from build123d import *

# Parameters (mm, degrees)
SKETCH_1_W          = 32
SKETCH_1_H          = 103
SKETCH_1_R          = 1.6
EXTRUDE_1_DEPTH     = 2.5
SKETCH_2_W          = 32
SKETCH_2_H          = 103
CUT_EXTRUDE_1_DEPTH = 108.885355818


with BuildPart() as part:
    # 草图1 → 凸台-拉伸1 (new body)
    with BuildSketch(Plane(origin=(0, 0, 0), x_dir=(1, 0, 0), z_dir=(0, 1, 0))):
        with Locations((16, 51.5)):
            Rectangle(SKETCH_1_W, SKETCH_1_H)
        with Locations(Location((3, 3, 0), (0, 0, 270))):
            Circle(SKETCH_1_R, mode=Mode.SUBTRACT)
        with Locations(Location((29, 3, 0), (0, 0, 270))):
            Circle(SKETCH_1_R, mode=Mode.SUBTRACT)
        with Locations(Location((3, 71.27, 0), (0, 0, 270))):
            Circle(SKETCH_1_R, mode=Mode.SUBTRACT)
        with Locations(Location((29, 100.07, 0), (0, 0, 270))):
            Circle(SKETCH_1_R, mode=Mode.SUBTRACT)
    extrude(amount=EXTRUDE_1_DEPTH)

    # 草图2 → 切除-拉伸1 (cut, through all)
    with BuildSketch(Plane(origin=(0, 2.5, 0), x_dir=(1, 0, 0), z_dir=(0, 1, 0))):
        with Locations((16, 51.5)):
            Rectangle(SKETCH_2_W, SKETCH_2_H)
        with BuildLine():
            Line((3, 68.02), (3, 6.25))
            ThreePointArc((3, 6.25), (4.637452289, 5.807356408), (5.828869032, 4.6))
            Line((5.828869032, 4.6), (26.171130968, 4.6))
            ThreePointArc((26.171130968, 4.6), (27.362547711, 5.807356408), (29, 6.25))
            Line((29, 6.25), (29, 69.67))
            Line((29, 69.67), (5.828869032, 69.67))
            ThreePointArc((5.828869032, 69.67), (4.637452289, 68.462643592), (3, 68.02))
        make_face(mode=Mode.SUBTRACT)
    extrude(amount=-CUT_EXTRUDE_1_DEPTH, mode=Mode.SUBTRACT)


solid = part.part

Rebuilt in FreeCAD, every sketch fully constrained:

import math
import FreeCAD as App
import Part
import Sketcher

V = App.Vector

doc = App.newDocument("Part")
params = doc.addObject("Spreadsheet::Sheet", "Params")
for row, (alias, value) in enumerate([
    ("sketch1_diameter", "3.2 mm"),
    ("sketch1_width", "32 mm"),
    ("sketch1_height", "103 mm"),
    ("pad1_length", "2.5 mm"),
    ("sketch2_width", "32 mm"),
    ("sketch2_height", "103 mm"),
    ("sketch2_radius", "3.25 mm"),
    ("sketch2_height2", "61.77 mm"),
    ("sketch2_height3", "63.42 mm"),
], start=1):
    params.set(f"A{row}", alias)
    params.set(f"B{row}", "=" + value)
    params.setAlias(f"B{row}", alias)

body = doc.addObject("PartDesign::Body", "Body")

# Sketch on XZ plane
sketch1 = body.newObject("Sketcher::SketchObject", "Sketch")
sketch1.AttachmentSupport = (doc.getObject("XZ_Plane"), [""])
sketch1.MapMode = "FlatFace"
sketch1.addGeometry(Part.LineSegment(V(0, -103, 0), V(0, 0, 0)), False)
sketch1.addGeometry(Part.LineSegment(V(0, 0, 0), V(32, 0, 0)), False)
sketch1.addGeometry(Part.LineSegment(V(32, 0, 0), V(32, -103, 0)), False)
sketch1.addGeometry(Part.LineSegment(V(32, -103, 0), V(0, -103, 0)), False)
sketch1.addGeometry(Part.Circle(V(3, -3, 0), V(0, 0, 1), 1.6), False)
sketch1.addGeometry(Part.Circle(V(29, -3, 0), V(0, 0, 1), 1.6), False)
sketch1.addGeometry(Part.Circle(V(3, -71.3, 0), V(0, 0, 1), 1.6), False)
sketch1.addGeometry(Part.Circle(V(29, -100.1, 0), V(0, 0, 1), 1.6), False)
sketch1.addConstraint(Sketcher.Constraint("Coincident", 0, 2, 1, 1))
sketch1.addConstraint(Sketcher.Constraint("Coincident", 1, 2, 2, 1))
sketch1.addConstraint(Sketcher.Constraint("Coincident", 2, 2, 3, 1))
sketch1.addConstraint(Sketcher.Constraint("Coincident", 3, 2, 0, 1))
sketch1.addConstraint(Sketcher.Constraint("Vertical", 0))
sketch1.addConstraint(Sketcher.Constraint("Horizontal", 1))
sketch1.addConstraint(Sketcher.Constraint("Vertical", 2))
sketch1.addConstraint(Sketcher.Constraint("Horizontal", 3))
sketch1.addConstraint(Sketcher.Constraint("Coincident", 0, 2, -1, 1))
sketch1.addConstraint(Sketcher.Constraint("Equal", 4, 5))
sketch1.addConstraint(Sketcher.Constraint("Equal", 5, 6))
sketch1.addConstraint(Sketcher.Constraint("Equal", 6, 7))
sketch1.addConstraint(Sketcher.Constraint("Horizontal", 4, 3, 5, 3))
sketch1.addConstraint(Sketcher.Constraint("Vertical", 4, 3, 6, 3))
sketch1.addConstraint(Sketcher.Constraint("Vertical", 5, 3, 7, 3))
sketch1.addConstraint(Sketcher.Constraint("Diameter", 4, 3.2))
sketch1.addConstraint(Sketcher.Constraint("DistanceX", 1, 1, 1, 2, 32.0))
sketch1.addConstraint(Sketcher.Constraint("DistanceY", 0, 1, 0, 2, 103.0))
sketch1.addConstraint(Sketcher.Constraint("DistanceX", -1, 1, 4, 3, 3.0))
sketch1.addConstraint(Sketcher.Constraint("DistanceY", 4, 3, -1, 1, 3.0))
sketch1.addConstraint(Sketcher.Constraint("DistanceX", -1, 1, 5, 3, 29.0))
sketch1.addConstraint(Sketcher.Constraint("DistanceY", 7, 3, 6, 3, 28.8))
sketch1.addConstraint(Sketcher.Constraint("DistanceY", 6, 3, -1, 1, 71.27))
sketch1.setExpression("Constraints[15]", "Params.sketch1_diameter")
sketch1.setExpression("Constraints[16]", "Params.sketch1_width")
sketch1.setExpression("Constraints[17]", "Params.sketch1_height")
pad1 = body.newObject("PartDesign::Pad", "Pad")
pad1.Profile = sketch1
pad1.setExpression("Length", "Params.pad1_length")
pad1.Reversed = True

# Sketch on XZ plane
sketch2 = body.newObject("Sketcher::SketchObject", "Sketch001")
sketch2.AttachmentSupport = (doc.getObject("XZ_Plane"), [""])
sketch2.MapMode = "FlatFace"
sketch2.AttachmentOffset = App.Placement(V(0, 0, -2.5), App.Rotation())
sketch2.addGeometry(Part.LineSegment(V(0, -103, 0), V(0, 0, 0)), False)
sketch2.addGeometry(Part.LineSegment(V(0, 0, 0), V(32, 0, 0)), False)
sketch2.addGeometry(Part.LineSegment(V(32, 0, 0), V(32, -103, 0)), False)
sketch2.addGeometry(Part.LineSegment(V(32, -103, 0), V(0, -103, 0)), False)
sketch2.addGeometry(Part.LineSegment(V(3, -6.2, 0), V(3, -68, 0)), False)
sketch2.addGeometry(Part.ArcOfCircle(Part.Circle(V(3, -71.3, 0), V(0, 0, 1), 3.2), math.radians(29), math.radians(90)), False)
sketch2.addGeometry(Part.LineSegment(V(5.8, -69.7, 0), V(29, -69.7, 0)), False)
sketch2.addGeometry(Part.LineSegment(V(29, -69.7, 0), V(29, -6.2, 0)), False)
sketch2.addGeometry(Part.ArcOfCircle(Part.Circle(V(29, -3, 0), V(0, 0, 1), 3.2), math.radians(-151), math.radians(-90)), False)
sketch2.addGeometry(Part.LineSegment(V(26.2, -4.6, 0), V(5.8, -4.6, 0)), False)
sketch2.addGeometry(Part.ArcOfCircle(Part.Circle(V(3, -3, 0), V(0, 0, 1), 3.2), math.radians(-90), math.radians(-29)), False)
sketch2.addConstraint(Sketcher.Constraint("Coincident", 0, 2, 1, 1))
sketch2.addConstraint(Sketcher.Constraint("Coincident", 1, 2, 2, 1))
sketch2.addConstraint(Sketcher.Constraint("Coincident", 2, 2, 3, 1))
sketch2.addConstraint(Sketcher.Constraint("Coincident", 3, 2, 0, 1))
sketch2.addConstraint(Sketcher.Constraint("Coincident", 4, 2, 5, 2))
sketch2.addConstraint(Sketcher.Constraint("Coincident", 5, 1, 6, 1))
sketch2.addConstraint(Sketcher.Constraint("Coincident", 6, 2, 7, 1))
sketch2.addConstraint(Sketcher.Constraint("Coincident", 7, 2, 8, 2))
sketch2.addConstraint(Sketcher.Constraint("Coincident", 8, 1, 9, 1))
sketch2.addConstraint(Sketcher.Constraint("Coincident", 9, 2, 10, 2))
sketch2.addConstraint(Sketcher.Constraint("Coincident", 10, 1, 4, 1))
sketch2.addConstraint(Sketcher.Constraint("Vertical", 0))
sketch2.addConstraint(Sketcher.Constraint("Horizontal", 1))
sketch2.addConstraint(Sketcher.Constraint("Vertical", 2))
sketch2.addConstraint(Sketcher.Constraint("Horizontal", 3))
sketch2.addConstraint(Sketcher.Constraint("Vertical", 4))
sketch2.addConstraint(Sketcher.Constraint("Horizontal", 6))
sketch2.addConstraint(Sketcher.Constraint("Vertical", 7))
sketch2.addConstraint(Sketcher.Constraint("Horizontal", 9))
sketch2.addConstraint(Sketcher.Constraint("Coincident", 0, 2, -1, 1))
sketch2.addConstraint(Sketcher.Constraint("Equal", 5, 8))
sketch2.addConstraint(Sketcher.Constraint("Equal", 8, 10))
sketch2.addConstraint(Sketcher.Constraint("Horizontal", 8, 3, 10, 3))
sketch2.addConstraint(Sketcher.Constraint("Vertical", 5, 3, 10, 3))
sketch2.addConstraint(Sketcher.Constraint("Vertical", 10, 3, 4, 2))
sketch2.addConstraint(Sketcher.Constraint("Vertical", 8, 3, 6, 2))
sketch2.addConstraint(Sketcher.Constraint("Vertical", 5, 1, 9, 2))
sketch2.addConstraint(Sketcher.Constraint("DistanceX", 1, 1, 1, 2, 32.0))
sketch2.addConstraint(Sketcher.Constraint("DistanceY", 0, 1, 0, 2, 103.0))
sketch2.addConstraint(Sketcher.Constraint("Radius", 5, 3.25))
sketch2.addConstraint(Sketcher.Constraint("DistanceX", -1, 1, 5, 3, 3.0))
sketch2.addConstraint(Sketcher.Constraint("DistanceX", -1, 1, 8, 3, 29.0))
sketch2.addConstraint(Sketcher.Constraint("DistanceY", 8, 3, -1, 1, 3.0))
sketch2.addConstraint(Sketcher.Constraint("DistanceY", 4, 2, 4, 1, 61.77))
sketch2.addConstraint(Sketcher.Constraint("DistanceY", 7, 1, 7, 2, 63.42))
sketch2.setExpression("Constraints[27]", "Params.sketch2_width")
sketch2.setExpression("Constraints[28]", "Params.sketch2_height")
sketch2.setExpression("Constraints[29]", "Params.sketch2_radius")
sketch2.setExpression("Constraints[33]", "Params.sketch2_height2")
sketch2.setExpression("Constraints[34]", "Params.sketch2_height3")
pocket1 = body.newObject("PartDesign::Pocket", "Pocket")
pocket1.Profile = sketch2
pocket1.Type = "ThroughAll"
pocket1.Reversed = True

doc.recompute()
